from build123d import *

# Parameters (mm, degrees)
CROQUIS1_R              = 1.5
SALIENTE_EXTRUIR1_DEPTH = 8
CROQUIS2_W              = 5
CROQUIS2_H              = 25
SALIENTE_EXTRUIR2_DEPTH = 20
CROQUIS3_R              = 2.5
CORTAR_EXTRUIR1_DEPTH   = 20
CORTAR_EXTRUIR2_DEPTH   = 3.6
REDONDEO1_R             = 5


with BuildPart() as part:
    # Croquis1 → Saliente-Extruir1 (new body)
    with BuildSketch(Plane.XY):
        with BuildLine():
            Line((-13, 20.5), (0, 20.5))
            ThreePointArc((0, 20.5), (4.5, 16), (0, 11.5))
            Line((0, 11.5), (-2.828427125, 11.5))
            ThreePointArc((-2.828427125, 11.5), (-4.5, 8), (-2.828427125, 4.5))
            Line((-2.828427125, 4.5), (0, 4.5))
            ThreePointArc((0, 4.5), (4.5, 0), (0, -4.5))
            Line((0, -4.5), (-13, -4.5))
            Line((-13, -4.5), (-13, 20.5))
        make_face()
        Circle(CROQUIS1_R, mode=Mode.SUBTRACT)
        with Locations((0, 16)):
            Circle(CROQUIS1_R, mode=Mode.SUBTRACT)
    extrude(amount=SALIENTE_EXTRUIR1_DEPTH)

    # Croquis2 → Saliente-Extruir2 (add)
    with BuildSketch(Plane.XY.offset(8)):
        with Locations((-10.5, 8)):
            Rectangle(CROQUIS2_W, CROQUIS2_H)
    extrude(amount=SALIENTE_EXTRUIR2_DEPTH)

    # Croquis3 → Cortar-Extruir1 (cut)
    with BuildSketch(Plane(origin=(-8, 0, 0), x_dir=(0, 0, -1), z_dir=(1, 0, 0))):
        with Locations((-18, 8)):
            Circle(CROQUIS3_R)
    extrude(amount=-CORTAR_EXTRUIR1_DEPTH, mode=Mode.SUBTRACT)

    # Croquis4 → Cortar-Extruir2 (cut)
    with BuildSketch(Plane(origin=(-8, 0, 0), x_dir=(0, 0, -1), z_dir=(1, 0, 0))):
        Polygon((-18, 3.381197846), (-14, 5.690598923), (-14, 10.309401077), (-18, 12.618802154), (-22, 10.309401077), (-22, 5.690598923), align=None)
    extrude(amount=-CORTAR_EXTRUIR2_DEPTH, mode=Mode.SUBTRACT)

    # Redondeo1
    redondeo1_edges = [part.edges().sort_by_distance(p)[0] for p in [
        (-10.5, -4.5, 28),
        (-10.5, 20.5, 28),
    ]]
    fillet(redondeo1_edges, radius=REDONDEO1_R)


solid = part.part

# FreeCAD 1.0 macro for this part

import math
import FreeCAD as App
import Part
import Sketcher

V = App.Vector
Q = App.Units.Quantity


def edges_at(feature, points):
    """Names of the edges that pass closest to the given points."""
    edges = feature.Shape.Edges
    near = lambda p: min(range(len(edges)), key=lambda i: edges[i].distToShape(Part.Vertex(*p))[0])
    return sorted({f"Edge{near(p) + 1}" for p in points})


def add_polygon(sketch, points):
    """Adds a closed chain of lines whose ends are joined by coincident constraints."""
    first, n = sketch.GeometryCount, len(points)
    for a, b in zip(points, points[1:] + points[:1]):
        sketch.addGeometry(Part.LineSegment(App.Vector(*a, 0), App.Vector(*b, 0)), False)
    for i in range(n):
        sketch.addConstraint(Sketcher.Constraint("Coincident", first + i, 2, first + (i + 1) % n, 1))

doc = App.newDocument("Part")
body = doc.addObject("PartDesign::Body", "Body")

# Sketch on XY plane
sketch1 = body.newObject("Sketcher::SketchObject", "Sketch")
sketch1.AttachmentSupport = (doc.getObject("XY_Plane"), [""])
sketch1.MapMode = "FlatFace"
sketch1.addGeometry(Part.LineSegment(V(0, 20.5, 0), V(-13, 20.5, 0)), False)
sketch1.addGeometry(Part.LineSegment(V(-13, 20.5, 0), V(-13, -4.5, 0)), False)
sketch1.addGeometry(Part.LineSegment(V(-13, -4.5, 0), V(0, -4.5, 0)), False)
sketch1.addGeometry(Part.ArcOfCircle(Part.Circle(V(0, 0, 0), V(0, 0, 1), 4.5), math.radians(-90), math.radians(90)), False)
sketch1.addGeometry(Part.LineSegment(V(0, 4.5, 0), V(-2.8, 4.5, 0)), False)
sketch1.addGeometry(Part.ArcOfCircle(Part.Circle(V(0, 8, 0), V(0, 0, 1), 4.5), math.radians(129), math.radians(231)), False)
sketch1.addGeometry(Part.LineSegment(V(-2.8, 11.5, 0), V(0, 11.5, 0)), False)
sketch1.addGeometry(Part.ArcOfCircle(Part.Circle(V(0, 16, 0), V(0, 0, 1), 4.5), math.radians(-90), math.radians(90)), False)
sketch1.addGeometry(Part.Circle(V(0, 0, 0), V(0, 0, 1), 1.5), False)
sketch1.addGeometry(Part.Circle(V(0, 16, 0), V(0, 0, 1), 1.5), False)
sketch1.addConstraint(Sketcher.Constraint("Coincident", 0, 2, 1, 1))
sketch1.addConstraint(Sketcher.Constraint("Coincident", 1, 2, 2, 1))
sketch1.addConstraint(Sketcher.Constraint("Tangent", 2, 2, 3, 1))
sketch1.addConstraint(Sketcher.Constraint("Tangent", 3, 2, 4, 1))
sketch1.addConstraint(Sketcher.Constraint("Coincident", 4, 2, 5, 2))
sketch1.addConstraint(Sketcher.Constraint("Coincident", 5, 1, 6, 1))
sketch1.addConstraint(Sketcher.Constraint("Tangent", 6, 2, 7, 1))
sketch1.addConstraint(Sketcher.Constraint("Tangent", 7, 2, 0, 1))
sketch1.addConstraint(Sketcher.Constraint("Horizontal", 0))
sketch1.addConstraint(Sketcher.Constraint("Vertical", 1))
sketch1.addConstraint(Sketcher.Constraint("Horizontal", 2))
sketch1.addConstraint(Sketcher.Constraint("Horizontal", 4))
sketch1.addConstraint(Sketcher.Constraint("Horizontal", 6))
sketch1.addConstraint(Sketcher.Constraint("Coincident", 3, 3, -1, 1))
sketch1.addConstraint(Sketcher.Constraint("Coincident", 8, 3, -1, 1))
sketch1.addConstraint(Sketcher.Constraint("Coincident", 9, 3, 7, 3))
sketch1.addConstraint(Sketcher.Constraint("Equal", 3, 5))
sketch1.addConstraint(Sketcher.Constraint("Equal", 5, 7))
sketch1.addConstraint(Sketcher.Constraint("Equal", 8, 9))
sketch1.addConstraint(Sketcher.Constraint("PointOnObject", 5, 3, -2))
sketch1.addConstraint(Sketcher.Constraint("PointOnObject", 7, 3, -2))
sketch1.addConstraint(Sketcher.Constraint("Vertical", 4, 2, 5, 1))
sketch1.addConstraint(Sketcher.Constraint("Diameter", 8, Q("3 mm")))
sketch1.addConstraint(Sketcher.Constraint("Radius", 3, Q("4.5 mm")))
sketch1.addConstraint(Sketcher.Constraint("DistanceX", 0, 2, 0, 1, Q("13 mm")))
sketch1.addConstraint(Sketcher.Constraint("DistanceY", 1, 2, 1, 1, Q("25 mm")))
pad1 = body.newObject("PartDesign::Pad", "Pad")
pad1.Profile = sketch1
pad1.Length = 8

# Sketch on XY plane
sketch2 = body.newObject("Sketcher::SketchObject", "Sketch001")
sketch2.AttachmentSupport = (doc.getObject("XY_Plane"), [""])
sketch2.MapMode = "FlatFace"
sketch2.AttachmentOffset = App.Placement(V(0, 0, 8), App.Rotation())
add_polygon(sketch2, [(-13, 20), (-13, -4), (-8, -4), (-8, 20)])  # lines 0-3
sketch2.addConstraint(Sketcher.Constraint("Vertical", 0))
sketch2.addConstraint(Sketcher.Constraint("Horizontal", 1))
sketch2.addConstraint(Sketcher.Constraint("Vertical", 2))
sketch2.addConstraint(Sketcher.Constraint("Horizontal", 3))
sketch2.addConstraint(Sketcher.Constraint("DistanceX", 1, 1, 1, 2, Q("5 mm")))
sketch2.addConstraint(Sketcher.Constraint("DistanceY", 0, 2, 0, 1, Q("25 mm")))
sketch2.addConstraint(Sketcher.Constraint("DistanceX", 0, 2, -1, 1, Q("13 mm")))
sketch2.addConstraint(Sketcher.Constraint("DistanceY", 0, 2, -1, 1, Q("4.5 mm")))
pad2 = body.newObject("PartDesign::Pad", "Pad001")
pad2.Profile = sketch2
pad2.Length = 20

# Sketch on YZ plane
sketch3 = body.newObject("Sketcher::SketchObject", "Sketch002")
sketch3.AttachmentSupport = (doc.getObject("YZ_Plane"), [""])
sketch3.MapMode = "FlatFace"
sketch3.AttachmentOffset = App.Placement(V(0, 0, -8), App.Rotation())
sketch3.addGeometry(Part.Circle(V(8, 18, 0), V(0, 0, 1), 2.5), False)
sketch3.addConstraint(Sketcher.Constraint("Diameter", 0, Q("5 mm")))
sketch3.addConstraint(Sketcher.Constraint("DistanceX", -1, 1, 0, 3, Q("8 mm")))
sketch3.addConstraint(Sketcher.Constraint("DistanceY", -1, 1, 0, 3, Q("18 mm")))
pocket1 = body.newObject("PartDesign::Pocket", "Pocket")
pocket1.Profile = sketch3
pocket1.Length = 20

# Sketch on YZ plane
sketch4 = body.newObject("Sketcher::SketchObject", "Sketch003")
sketch4.AttachmentSupport = (doc.getObject("YZ_Plane"), [""])
sketch4.MapMode = "FlatFace"
sketch4.AttachmentOffset = App.Placement(V(0, 0, -8), App.Rotation())
add_polygon(sketch4, [(3.4, 18), (5.7, 14), (10.3, 14), (12.6, 18), (10.3, 22), (5.7, 22)])  # lines 0-5
sketch4.addConstraint(Sketcher.Constraint("Horizontal", 1))
sketch4.addConstraint(Sketcher.Constraint("Horizontal", 4))
sketch4.addConstraint(Sketcher.Constraint("Parallel", 0, 3))
sketch4.addConstraint(Sketcher.Constraint("Parallel", 2, 5))
sketch4.addConstraint(Sketcher.Constraint("Horizontal", 2, 2, 5, 2))
sketch4.addConstraint(Sketcher.Constraint("Vertical", 1, 2, 3, 2))
sketch4.addConstraint(Sketcher.Constraint("Vertical", 0, 2, 4, 2))
sketch4.addConstraint(Sketcher.Constraint("Angle", 0, Q("-60 deg")))
sketch4.addConstraint(Sketcher.Constraint("DistanceY", -1, 1, 0, 2, Q("14 mm")))
sketch4.addConstraint(Sketcher.Constraint("DistanceY", -1, 1, 2, 2, Q("18 mm")))
sketch4.addConstraint(Sketcher.Constraint("DistanceX", -1, 1, 0, 2, Q("5.690599 mm")))
sketch4.addConstraint(Sketcher.Constraint("DistanceX", -1, 1, 1, 2, Q("10.309401 mm")))
pocket2 = body.newObject("PartDesign::Pocket", "Pocket001")
pocket2.Profile = sketch4
pocket2.Length = 3.6
doc.recompute()

fillet = body.newObject("PartDesign::Fillet", "Fillet")
fillet.Base = (pocket2, edges_at(pocket2, [(-10.5, -4.5, 28), (-10.5, 20.5, 28)]))
fillet.Radius = 5

doc.recompute()
